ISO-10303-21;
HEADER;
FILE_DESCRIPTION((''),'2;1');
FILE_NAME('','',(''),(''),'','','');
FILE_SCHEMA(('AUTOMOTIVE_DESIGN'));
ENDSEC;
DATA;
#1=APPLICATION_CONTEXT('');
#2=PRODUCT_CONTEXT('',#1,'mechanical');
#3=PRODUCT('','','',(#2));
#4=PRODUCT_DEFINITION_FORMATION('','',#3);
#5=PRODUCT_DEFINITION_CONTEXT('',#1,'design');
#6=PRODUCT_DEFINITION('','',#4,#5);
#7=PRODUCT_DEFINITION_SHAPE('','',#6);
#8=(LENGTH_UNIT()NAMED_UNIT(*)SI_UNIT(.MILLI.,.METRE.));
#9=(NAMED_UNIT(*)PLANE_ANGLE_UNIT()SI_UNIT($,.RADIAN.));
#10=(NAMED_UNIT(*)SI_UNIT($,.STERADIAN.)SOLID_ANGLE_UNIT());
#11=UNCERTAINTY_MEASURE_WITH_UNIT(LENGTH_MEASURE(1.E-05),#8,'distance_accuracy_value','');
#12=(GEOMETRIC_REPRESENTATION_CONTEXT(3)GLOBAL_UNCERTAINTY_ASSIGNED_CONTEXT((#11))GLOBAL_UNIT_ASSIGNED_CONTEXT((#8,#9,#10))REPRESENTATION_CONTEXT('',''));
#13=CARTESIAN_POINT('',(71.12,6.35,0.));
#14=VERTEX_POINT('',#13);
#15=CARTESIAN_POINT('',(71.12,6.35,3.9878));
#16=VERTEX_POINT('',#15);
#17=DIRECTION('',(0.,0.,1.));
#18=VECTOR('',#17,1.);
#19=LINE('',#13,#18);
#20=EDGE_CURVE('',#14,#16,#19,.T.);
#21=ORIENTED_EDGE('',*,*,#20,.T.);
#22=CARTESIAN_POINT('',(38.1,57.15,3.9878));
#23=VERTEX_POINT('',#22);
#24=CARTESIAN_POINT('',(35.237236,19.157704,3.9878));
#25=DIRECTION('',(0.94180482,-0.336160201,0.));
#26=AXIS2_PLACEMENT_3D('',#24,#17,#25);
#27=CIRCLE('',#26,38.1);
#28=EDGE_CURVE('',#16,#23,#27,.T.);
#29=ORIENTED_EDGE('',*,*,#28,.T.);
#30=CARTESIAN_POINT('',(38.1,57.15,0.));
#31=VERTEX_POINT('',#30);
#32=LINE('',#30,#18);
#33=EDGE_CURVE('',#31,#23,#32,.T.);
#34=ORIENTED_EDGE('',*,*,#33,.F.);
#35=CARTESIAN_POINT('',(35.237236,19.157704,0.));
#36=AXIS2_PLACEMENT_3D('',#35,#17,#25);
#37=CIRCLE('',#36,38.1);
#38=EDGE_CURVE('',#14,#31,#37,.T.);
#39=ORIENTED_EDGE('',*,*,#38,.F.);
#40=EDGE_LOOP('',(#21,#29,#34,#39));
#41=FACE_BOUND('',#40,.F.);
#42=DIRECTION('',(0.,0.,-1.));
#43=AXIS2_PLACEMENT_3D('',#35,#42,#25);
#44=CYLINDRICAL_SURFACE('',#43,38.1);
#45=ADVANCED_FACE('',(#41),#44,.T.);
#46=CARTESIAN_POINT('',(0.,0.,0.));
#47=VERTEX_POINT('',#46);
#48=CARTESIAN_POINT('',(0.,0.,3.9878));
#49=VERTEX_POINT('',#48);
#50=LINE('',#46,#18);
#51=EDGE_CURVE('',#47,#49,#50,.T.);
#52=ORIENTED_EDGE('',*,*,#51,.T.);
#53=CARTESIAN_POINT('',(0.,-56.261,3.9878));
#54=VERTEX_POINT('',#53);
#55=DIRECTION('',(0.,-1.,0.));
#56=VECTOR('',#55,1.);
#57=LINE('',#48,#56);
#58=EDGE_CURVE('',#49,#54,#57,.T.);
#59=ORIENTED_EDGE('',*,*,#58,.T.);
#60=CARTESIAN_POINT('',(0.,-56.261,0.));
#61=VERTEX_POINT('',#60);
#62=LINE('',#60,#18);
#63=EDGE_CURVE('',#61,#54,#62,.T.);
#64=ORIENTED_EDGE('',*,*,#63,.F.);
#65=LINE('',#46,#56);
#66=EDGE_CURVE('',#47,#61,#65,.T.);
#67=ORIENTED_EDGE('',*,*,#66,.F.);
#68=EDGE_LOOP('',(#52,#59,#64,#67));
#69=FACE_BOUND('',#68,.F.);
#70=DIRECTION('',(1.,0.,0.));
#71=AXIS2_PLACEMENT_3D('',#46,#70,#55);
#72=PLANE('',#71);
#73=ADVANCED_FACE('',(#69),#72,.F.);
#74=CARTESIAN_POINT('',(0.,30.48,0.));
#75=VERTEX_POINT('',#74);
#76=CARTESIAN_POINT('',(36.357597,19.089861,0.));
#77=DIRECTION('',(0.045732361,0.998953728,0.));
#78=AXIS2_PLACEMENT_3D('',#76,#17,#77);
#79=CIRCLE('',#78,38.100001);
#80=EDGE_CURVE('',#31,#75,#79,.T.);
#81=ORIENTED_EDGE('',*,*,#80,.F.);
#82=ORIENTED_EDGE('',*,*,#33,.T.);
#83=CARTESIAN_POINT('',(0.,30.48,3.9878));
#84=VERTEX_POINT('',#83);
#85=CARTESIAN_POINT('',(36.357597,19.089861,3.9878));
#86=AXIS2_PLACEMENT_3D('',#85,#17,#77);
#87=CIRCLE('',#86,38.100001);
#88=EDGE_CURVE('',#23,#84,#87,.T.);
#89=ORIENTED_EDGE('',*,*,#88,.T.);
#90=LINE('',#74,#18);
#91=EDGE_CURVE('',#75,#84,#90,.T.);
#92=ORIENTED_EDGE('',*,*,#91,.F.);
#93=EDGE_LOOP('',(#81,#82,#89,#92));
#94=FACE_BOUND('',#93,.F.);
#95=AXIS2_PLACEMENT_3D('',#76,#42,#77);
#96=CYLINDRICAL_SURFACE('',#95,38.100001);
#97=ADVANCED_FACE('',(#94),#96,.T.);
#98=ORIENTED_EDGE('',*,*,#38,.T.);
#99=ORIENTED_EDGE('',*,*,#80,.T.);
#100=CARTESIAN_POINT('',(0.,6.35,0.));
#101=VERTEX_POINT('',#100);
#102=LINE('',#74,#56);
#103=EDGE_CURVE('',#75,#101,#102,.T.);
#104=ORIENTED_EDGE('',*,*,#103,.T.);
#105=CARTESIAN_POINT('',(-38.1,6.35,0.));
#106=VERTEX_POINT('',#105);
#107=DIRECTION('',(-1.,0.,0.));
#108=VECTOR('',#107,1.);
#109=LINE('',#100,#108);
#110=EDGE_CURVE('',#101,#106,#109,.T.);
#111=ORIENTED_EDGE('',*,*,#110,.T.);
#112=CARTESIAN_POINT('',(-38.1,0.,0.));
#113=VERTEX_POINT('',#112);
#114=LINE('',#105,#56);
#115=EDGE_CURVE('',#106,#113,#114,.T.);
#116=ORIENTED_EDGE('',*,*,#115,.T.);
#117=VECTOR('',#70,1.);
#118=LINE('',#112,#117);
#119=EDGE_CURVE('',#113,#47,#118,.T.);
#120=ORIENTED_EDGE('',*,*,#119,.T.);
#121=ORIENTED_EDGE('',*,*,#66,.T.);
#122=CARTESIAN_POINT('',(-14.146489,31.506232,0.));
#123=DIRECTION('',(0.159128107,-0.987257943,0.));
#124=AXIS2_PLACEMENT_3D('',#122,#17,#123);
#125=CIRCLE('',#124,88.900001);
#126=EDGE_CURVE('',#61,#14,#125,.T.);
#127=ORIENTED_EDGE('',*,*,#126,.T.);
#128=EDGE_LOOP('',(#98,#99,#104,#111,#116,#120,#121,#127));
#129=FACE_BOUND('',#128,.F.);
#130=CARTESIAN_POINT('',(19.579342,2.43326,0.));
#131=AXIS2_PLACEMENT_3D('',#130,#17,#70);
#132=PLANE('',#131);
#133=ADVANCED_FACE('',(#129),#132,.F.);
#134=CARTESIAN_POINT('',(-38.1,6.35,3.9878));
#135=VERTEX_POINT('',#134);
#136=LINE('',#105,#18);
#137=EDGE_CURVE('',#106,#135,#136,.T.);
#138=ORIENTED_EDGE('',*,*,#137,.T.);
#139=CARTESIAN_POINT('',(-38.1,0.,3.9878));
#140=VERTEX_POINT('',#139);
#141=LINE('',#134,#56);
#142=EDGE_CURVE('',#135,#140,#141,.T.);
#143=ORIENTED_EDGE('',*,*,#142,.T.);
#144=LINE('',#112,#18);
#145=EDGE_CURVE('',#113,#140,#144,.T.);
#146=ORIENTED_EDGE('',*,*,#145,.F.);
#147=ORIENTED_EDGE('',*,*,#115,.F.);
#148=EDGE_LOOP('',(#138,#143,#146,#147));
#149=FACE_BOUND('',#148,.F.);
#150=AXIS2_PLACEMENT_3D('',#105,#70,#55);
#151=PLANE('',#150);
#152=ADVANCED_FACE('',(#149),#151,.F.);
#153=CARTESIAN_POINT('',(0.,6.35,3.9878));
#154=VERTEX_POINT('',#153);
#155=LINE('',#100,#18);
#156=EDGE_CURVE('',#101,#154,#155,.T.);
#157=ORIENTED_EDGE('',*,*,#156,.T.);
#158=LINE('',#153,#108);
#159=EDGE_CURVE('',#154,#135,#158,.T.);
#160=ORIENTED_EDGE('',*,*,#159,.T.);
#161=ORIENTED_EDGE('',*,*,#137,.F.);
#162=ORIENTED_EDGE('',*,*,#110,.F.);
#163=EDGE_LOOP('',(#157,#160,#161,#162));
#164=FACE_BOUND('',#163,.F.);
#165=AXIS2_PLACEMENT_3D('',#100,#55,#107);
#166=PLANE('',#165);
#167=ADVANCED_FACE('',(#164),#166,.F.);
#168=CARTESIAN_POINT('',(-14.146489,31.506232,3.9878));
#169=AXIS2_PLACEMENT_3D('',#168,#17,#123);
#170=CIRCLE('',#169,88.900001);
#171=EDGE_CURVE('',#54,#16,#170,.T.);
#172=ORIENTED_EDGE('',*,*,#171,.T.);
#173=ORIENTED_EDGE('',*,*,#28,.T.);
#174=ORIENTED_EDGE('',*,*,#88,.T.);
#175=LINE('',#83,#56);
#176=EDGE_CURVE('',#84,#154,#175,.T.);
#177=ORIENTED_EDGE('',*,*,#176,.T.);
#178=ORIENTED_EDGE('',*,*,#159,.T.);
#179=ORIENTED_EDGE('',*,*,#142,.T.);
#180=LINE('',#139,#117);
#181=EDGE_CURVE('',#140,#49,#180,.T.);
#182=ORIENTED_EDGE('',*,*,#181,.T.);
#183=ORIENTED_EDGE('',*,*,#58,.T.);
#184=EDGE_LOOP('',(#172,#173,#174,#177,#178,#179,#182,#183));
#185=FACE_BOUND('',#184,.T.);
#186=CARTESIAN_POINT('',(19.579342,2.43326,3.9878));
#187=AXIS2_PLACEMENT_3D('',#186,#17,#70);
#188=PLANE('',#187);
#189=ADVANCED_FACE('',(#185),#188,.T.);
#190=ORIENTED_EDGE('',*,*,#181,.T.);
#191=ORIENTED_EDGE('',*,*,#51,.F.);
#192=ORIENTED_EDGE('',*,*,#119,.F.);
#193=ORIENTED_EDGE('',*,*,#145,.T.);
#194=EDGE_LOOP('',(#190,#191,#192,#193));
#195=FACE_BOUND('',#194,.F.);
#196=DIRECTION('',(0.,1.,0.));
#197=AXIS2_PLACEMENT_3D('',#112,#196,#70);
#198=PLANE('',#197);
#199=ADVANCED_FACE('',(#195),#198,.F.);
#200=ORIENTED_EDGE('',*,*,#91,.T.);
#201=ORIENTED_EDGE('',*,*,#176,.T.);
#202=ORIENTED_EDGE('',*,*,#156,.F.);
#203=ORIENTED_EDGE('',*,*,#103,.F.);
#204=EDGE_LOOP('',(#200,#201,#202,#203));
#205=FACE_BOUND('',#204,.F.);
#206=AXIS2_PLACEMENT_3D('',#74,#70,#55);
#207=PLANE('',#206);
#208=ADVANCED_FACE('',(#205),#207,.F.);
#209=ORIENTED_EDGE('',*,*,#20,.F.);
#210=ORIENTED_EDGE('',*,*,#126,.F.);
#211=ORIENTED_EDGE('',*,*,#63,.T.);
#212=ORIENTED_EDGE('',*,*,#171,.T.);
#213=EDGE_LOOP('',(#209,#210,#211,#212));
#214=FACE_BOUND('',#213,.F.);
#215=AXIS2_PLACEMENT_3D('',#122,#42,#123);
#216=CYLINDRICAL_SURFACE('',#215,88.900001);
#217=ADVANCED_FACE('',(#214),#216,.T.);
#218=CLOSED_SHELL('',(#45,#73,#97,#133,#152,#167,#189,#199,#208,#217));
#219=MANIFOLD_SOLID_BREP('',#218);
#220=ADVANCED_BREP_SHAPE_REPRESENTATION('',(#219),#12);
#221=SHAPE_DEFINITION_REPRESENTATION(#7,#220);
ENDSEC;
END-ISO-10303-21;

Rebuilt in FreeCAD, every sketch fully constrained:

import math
import FreeCAD as App
import Part
import Sketcher

V = App.Vector
Q = App.Units.Quantity

doc = App.newDocument("Part")
body = doc.addObject("PartDesign::Body", "Body")

# Sketch on XY plane
sketch1 = doc.addObject("Sketcher::SketchObject", "Sketch")
body.addObject(sketch1)
sketch1.AttachmentSupport = (doc.XY_Plane, [""])
sketch1.MapMode = "FlatFace"
sketch1.addGeometry([
    Part.LineSegment(V(-38, 0, 0), V(0, 0, 0)),  # 0
    Part.LineSegment(V(0, 0, 0), V(0, -56, 0)),  # 1
    Part.ArcOfCircle(Part.Circle(V(-14, 32, 0), V(0, 0, 1), 89), math.radians(-81), math.radians(-16)),  # 2
    Part.ArcOfCircle(Part.Circle(V(35, 19, 0), V(0, 0, 1), 38), math.radians(-20), math.radians(86)),  # 3
    Part.ArcOfCircle(Part.Circle(V(36, 19, 0), V(0, 0, 1), 38), math.radians(87), math.radians(163)),  # 4
    Part.LineSegment(V(0, 30, 0), V(0, 6, 0)),  # 5
    Part.LineSegment(V(0, 6, 0), V(-38, 6, 0)),  # 6
    Part.LineSegment(V(-38, 6, 0), V(-38, 0, 0)),  # 7
], False)
sketch1.addConstraint([
    Sketcher.Constraint("Coincident", 0, 2, 1, 1),
    Sketcher.Constraint("Coincident", 1, 2, 2, 1),
    Sketcher.Constraint("Coincident", 2, 2, 3, 1),
    Sketcher.Constraint("Coincident", 3, 2, 4, 1),
    Sketcher.Constraint("Coincident", 4, 2, 5, 1),
    Sketcher.Constraint("Coincident", 5, 2, 6, 1),
    Sketcher.Constraint("Coincident", 6, 2, 7, 1),
    Sketcher.Constraint("Coincident", 7, 2, 0, 1),
    Sketcher.Constraint("Horizontal", 0),
    Sketcher.Constraint("Vertical", 1),
    Sketcher.Constraint("Vertical", 5),
    Sketcher.Constraint("Horizontal", 6),
    Sketcher.Constraint("Vertical", 7),
    Sketcher.Constraint("Coincident", 0, 2, -1, 1),
    Sketcher.Constraint("Equal", 3, 4),
    Sketcher.Constraint("PointOnObject", 4, 2, -2),
    Sketcher.Constraint("Horizontal", 2, 2, 5, 2),
    Sketcher.Constraint("Radius", 2, Q("3.5 in")),
    Sketcher.Constraint("Radius", 3, Q("1.5 in")),
    Sketcher.Constraint("DistanceX", 0, 1, 0, 2, Q("1.5 in")),
    Sketcher.Constraint("DistanceY", 2, 2, 3, 2, Q("2 in")),
    Sketcher.Constraint("DistanceY", 5, 2, 5, 1, Q("0.95 in")),
    Sketcher.Constraint("DistanceY", 7, 2, 7, 1, Q("0.25 in")),
    Sketcher.Constraint("DistanceX", -1, 1, 2, 2, Q("2.8 in")),
    Sketcher.Constraint("DistanceX", -1, 1, 3, 2, Q("1.5 in")),
    Sketcher.Constraint("DistanceY", 1, 2, 1, 1, Q("2.215 in")),
])
pad1 = doc.addObject("PartDesign::Pad", "Pad")
body.addObject(pad1)
pad1.Profile = sketch1
pad1.Length = Q("0.157 in")

doc.recompute()
